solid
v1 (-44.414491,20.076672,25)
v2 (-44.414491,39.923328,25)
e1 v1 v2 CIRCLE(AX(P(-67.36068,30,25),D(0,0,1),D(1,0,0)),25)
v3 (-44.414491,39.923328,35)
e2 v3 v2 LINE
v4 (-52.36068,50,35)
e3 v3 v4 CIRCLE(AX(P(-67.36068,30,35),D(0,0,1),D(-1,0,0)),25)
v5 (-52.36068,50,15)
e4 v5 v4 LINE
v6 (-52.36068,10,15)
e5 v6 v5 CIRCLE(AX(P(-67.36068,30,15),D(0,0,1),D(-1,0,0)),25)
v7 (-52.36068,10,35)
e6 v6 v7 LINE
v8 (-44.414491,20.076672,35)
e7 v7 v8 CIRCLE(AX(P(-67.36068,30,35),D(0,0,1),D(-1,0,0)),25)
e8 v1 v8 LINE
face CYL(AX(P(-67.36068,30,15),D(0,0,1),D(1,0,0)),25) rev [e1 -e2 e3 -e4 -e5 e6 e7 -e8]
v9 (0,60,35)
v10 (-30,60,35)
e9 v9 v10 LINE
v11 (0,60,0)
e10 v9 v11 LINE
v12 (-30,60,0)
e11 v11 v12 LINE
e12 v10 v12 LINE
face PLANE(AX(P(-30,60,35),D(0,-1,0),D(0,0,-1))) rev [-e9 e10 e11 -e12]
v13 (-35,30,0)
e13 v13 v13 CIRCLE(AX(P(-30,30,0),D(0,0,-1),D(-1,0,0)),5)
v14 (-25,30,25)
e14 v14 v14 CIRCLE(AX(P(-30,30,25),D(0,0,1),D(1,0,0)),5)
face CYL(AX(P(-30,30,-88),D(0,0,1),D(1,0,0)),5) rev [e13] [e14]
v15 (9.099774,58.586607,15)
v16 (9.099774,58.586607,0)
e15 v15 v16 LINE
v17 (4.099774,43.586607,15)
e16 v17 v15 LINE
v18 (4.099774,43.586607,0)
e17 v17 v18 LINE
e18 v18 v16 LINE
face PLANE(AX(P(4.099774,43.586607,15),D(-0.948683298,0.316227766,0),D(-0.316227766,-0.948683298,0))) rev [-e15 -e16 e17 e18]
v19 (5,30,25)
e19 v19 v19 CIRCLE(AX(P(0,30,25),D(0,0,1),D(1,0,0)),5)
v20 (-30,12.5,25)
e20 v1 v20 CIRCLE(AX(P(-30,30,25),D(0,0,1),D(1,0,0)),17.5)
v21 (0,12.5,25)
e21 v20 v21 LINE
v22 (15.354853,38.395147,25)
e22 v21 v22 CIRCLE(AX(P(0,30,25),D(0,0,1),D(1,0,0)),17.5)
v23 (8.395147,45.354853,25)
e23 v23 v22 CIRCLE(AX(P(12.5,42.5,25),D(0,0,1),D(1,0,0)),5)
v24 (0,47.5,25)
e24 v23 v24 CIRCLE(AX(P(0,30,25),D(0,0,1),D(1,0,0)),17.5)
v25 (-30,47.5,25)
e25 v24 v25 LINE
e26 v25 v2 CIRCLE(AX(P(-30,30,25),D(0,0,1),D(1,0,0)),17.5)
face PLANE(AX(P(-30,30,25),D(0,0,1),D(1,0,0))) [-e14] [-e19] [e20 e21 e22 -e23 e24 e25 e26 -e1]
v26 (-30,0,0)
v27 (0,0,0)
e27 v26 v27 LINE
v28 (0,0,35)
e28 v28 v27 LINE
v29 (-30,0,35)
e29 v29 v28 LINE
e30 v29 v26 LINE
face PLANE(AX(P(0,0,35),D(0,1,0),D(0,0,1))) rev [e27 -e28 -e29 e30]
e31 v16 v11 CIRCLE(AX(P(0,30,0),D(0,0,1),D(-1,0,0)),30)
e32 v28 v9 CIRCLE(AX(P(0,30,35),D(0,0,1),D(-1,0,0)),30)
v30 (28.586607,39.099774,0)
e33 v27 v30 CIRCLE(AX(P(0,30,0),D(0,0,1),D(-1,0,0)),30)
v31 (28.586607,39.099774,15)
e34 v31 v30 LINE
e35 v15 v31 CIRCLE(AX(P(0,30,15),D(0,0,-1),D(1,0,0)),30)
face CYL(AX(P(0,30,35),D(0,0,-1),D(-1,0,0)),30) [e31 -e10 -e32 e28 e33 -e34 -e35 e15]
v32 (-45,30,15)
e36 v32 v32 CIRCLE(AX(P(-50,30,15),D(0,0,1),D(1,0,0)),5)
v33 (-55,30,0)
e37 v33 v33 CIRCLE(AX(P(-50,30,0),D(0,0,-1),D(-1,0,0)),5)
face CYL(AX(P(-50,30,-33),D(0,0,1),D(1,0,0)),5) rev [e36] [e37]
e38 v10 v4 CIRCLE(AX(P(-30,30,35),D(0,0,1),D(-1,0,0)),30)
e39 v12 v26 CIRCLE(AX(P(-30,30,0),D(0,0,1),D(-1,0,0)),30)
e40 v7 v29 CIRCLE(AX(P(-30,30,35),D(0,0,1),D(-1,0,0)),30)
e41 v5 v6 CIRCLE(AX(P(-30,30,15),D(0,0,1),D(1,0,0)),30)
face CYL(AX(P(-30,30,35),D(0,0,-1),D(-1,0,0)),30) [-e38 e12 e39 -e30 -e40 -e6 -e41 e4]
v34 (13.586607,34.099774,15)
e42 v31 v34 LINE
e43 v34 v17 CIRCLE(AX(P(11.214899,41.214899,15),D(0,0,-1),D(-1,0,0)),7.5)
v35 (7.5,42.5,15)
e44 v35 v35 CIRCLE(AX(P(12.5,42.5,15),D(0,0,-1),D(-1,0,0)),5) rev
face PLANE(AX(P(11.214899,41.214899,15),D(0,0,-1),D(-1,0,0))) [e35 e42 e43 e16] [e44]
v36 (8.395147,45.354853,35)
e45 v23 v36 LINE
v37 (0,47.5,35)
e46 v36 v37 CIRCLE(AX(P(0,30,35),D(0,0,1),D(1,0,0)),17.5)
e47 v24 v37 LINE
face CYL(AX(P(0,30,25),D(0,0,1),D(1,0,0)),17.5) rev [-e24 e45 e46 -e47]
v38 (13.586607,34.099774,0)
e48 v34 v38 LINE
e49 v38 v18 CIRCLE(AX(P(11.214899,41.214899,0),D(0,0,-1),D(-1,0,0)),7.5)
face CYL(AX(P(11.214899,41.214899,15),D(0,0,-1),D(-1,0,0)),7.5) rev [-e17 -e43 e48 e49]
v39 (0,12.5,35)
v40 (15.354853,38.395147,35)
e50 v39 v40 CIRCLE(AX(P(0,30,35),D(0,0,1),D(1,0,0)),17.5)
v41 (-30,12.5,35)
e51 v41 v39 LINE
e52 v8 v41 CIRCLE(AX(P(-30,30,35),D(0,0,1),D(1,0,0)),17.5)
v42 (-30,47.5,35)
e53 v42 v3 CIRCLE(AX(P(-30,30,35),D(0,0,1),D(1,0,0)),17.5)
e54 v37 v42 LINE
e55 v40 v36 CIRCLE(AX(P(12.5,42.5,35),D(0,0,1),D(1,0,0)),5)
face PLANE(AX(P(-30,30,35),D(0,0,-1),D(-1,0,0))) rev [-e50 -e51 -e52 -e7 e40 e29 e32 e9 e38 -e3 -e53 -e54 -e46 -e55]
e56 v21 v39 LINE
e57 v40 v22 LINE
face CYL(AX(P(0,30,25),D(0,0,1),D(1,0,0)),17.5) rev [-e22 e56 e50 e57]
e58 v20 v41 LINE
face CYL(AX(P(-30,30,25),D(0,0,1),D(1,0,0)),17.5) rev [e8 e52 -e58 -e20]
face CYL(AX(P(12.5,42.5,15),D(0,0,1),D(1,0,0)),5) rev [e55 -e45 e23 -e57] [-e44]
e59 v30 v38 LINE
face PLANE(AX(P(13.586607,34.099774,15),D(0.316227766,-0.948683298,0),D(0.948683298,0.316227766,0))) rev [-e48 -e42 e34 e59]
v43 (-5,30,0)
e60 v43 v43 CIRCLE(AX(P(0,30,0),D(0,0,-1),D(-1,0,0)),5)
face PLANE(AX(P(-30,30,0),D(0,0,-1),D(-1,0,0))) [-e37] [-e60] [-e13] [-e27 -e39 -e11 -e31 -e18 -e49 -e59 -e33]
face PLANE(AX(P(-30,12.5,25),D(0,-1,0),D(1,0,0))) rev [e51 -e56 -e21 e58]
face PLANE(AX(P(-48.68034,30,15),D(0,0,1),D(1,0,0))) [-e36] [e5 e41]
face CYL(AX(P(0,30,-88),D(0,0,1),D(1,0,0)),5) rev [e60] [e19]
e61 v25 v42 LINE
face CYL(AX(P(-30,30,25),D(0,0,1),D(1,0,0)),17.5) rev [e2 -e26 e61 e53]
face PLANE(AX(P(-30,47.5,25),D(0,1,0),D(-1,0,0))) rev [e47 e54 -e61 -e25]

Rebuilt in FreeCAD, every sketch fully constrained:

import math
import FreeCAD as App
import Part
import Sketcher
Q = App.Units.Quantity

doc = App.newDocument("Part")
body = doc.addObject("PartDesign::Body", "Body")

# Sketch on XY plane
sketch1 = doc.addObject("Sketcher::SketchObject", "Sketch")
body.addObject(sketch1)
sketch1.AttachmentSupport = (doc.XY_Plane, [""])
sketch1.MapMode = "FlatFace"
sketch1.addGeometry([
    Part.LineSegment(App.Vector(0, 60, 0), App.Vector(-30, 60, 0)),
    Part.ArcOfCircle(Part.Circle(App.Vector(-30, 30, 0), App.Vector(0, 0, 1), 30), math.radians(90), math.radians(270)),
    Part.LineSegment(App.Vector(-30, 0, 0), App.Vector(0, 0, 0)),
    Part.ArcOfCircle(Part.Circle(App.Vector(0, 30, 0), App.Vector(0, 0, 1), 30), math.radians(-90), math.radians(90)),
], False)
sketch1.addConstraint([
    Sketcher.Constraint("Tangent", 0, 2, 1, 1),
    Sketcher.Constraint("Tangent", 1, 2, 2, 1),
    Sketcher.Constraint("Tangent", 2, 2, 3, 1),
    Sketcher.Constraint("Tangent", 3, 2, 0, 1),
    Sketcher.Constraint("Horizontal", 0),
    Sketcher.Constraint("Horizontal", 2),
    Sketcher.Constraint("Coincident", 2, 2, -1, 1),
    Sketcher.Constraint("Radius", 1, Q("30 mm")),
    Sketcher.Constraint("DistanceX", 0, 2, 0, 1, Q("30 mm")),
])
pad1 = doc.addObject("PartDesign::Pad", "Pad")
body.addObject(pad1)
pad1.Profile = sketch1
pad1.Length = 35

# Sketch on XY plane
sketch2 = doc.addObject("Sketcher::SketchObject", "Sketch001")
body.addObject(sketch2)
sketch2.AttachmentSupport = (doc.XY_Plane, [""])
sketch2.MapMode = "FlatFace"
sketch2.AttachmentOffset = App.Placement(App.Vector(0, 0, 35), App.Rotation())
sketch2.addGeometry([
    Part.LineSegment(App.Vector(0, 48, 0), App.Vector(-30, 48, 0)),
    Part.ArcOfCircle(Part.Circle(App.Vector(-30, 30, 0), App.Vector(0, 0, 1), 18), math.radians(90), math.radians(270)),
    Part.LineSegment(App.Vector(-30, 12, 0), App.Vector(0, 12, 0)),
    Part.ArcOfCircle(Part.Circle(App.Vector(0, 30, 0), App.Vector(0, 0, 1), 18), math.radians(-90), math.radians(90)),
], False)
sketch2.addConstraint([
    Sketcher.Constraint("Tangent", 0, 2, 1, 1),
    Sketcher.Constraint("Tangent", 1, 2, 2, 1),
    Sketcher.Constraint("Tangent", 2, 2, 3, 1),
    Sketcher.Constraint("Tangent", 3, 2, 0, 1),
    Sketcher.Constraint("Horizontal", 0),
    Sketcher.Constraint("Horizontal", 2),
    Sketcher.Constraint("PointOnObject", 3, 3, -2),
    Sketcher.Constraint("Radius", 1, Q("17.5 mm")),
    Sketcher.Constraint("DistanceX", 0, 2, 0, 1, Q("30 mm")),
    Sketcher.Constraint("DistanceY", -1, 1, 1, 3, Q("30 mm")),
])
pocket1 = doc.addObject("PartDesign::Pocket", "Pocket")
body.addObject(pocket1)
pocket1.Profile = sketch2
pocket1.Length = 10

# Sketch on XY plane
sketch3 = doc.addObject("Sketcher::SketchObject", "Sketch002")
body.addObject(sketch3)
sketch3.AttachmentSupport = (doc.XY_Plane, [""])
sketch3.MapMode = "FlatFace"
sketch3.AttachmentOffset = App.Placement(App.Vector(0, 0, 25), App.Rotation())
sketch3.addGeometry([
    Part.Circle(App.Vector(-30, 30, 0), App.Vector(0, 0, 1), 5),
    Part.Circle(App.Vector(0, 30, 0), App.Vector(0, 0, 1), 5),
], False)
sketch3.addConstraint([
    Sketcher.Constraint("Equal", 0, 1),
    Sketcher.Constraint("PointOnObject", 1, 3, -2),
    Sketcher.Constraint("Horizontal", 0, 3, 1, 3),
    Sketcher.Constraint("Diameter", 0, Q("10 mm")),
    Sketcher.Constraint("DistanceX", 0, 3, -1, 1, Q("30 mm")),
    Sketcher.Constraint("DistanceY", -1, 1, 0, 3, Q("30 mm")),
])
pocket2 = doc.addObject("PartDesign::Pocket", "Pocket001")
body.addObject(pocket2)
pocket2.Profile = sketch3
pocket2.Length = 113

# Sketch on XY plane
sketch4 = doc.addObject("Sketcher::SketchObject", "Sketch003")
body.addObject(sketch4)
sketch4.AttachmentSupport = (doc.XY_Plane, [""])
sketch4.MapMode = "FlatFace"
sketch4.AttachmentOffset = App.Placement(App.Vector(0, 0, 35), App.Rotation())
sketch4.addGeometry(Part.Circle(App.Vector(12, 42, 0), App.Vector(0, 0, 1), 5), False)
sketch4.addConstraint([
    Sketcher.Constraint("Diameter", 0, Q("10 mm")),
    Sketcher.Constraint("DistanceX", -1, 1, 0, 3, Q("12.5 mm")),
    Sketcher.Constraint("DistanceY", -1, 1, 0, 3, Q("42.5 mm")),
])
pocket3 = doc.addObject("PartDesign::Pocket", "Pocket002")
body.addObject(pocket3)
pocket3.Profile = sketch4
pocket3.Length = 20

# Sketch on XY plane
sketch5 = doc.addObject("Sketcher::SketchObject", "Sketch004")
body.addObject(sketch5)
sketch5.AttachmentSupport = (doc.XY_Plane, [""])
sketch5.MapMode = "FlatFace"
sketch5.AttachmentOffset = App.Placement(App.Vector(0, 0, 35), App.Rotation())
sketch5.addGeometry([
    Part.ArcOfCircle(Part.Circle(App.Vector(-67, 30, 0), App.Vector(0, 0, 1), 25), math.radians(-53), math.radians(53)),
    Part.ArcOfCircle(Part.Circle(App.Vector(-30, 30, 0), App.Vector(0, 0, 1), 30), math.radians(138), math.radians(222)),
], False)
sketch5.addConstraint([
    Sketcher.Constraint("Coincident", 0, 1, 1, 2),
    Sketcher.Constraint("Coincident", 1, 1, 0, 2),
    Sketcher.Constraint("Horizontal", 0, 3, 1, 3),
    Sketcher.Constraint("Radius", 0, Q("25 mm")),
    Sketcher.Constraint("Radius", 1, Q("30 mm")),
    Sketcher.Constraint("DistanceY", -1, 1, 0, 3, Q("30 mm")),
    Sketcher.Constraint("DistanceX", 1, 3, -1, 1, Q("30 mm")),
    Sketcher.Constraint("DistanceY", -1, 1, 0, 1, Q("10 mm")),
])
pocket4 = doc.addObject("PartDesign::Pocket", "Pocket003")
body.addObject(pocket4)
pocket4.Profile = sketch5
pocket4.Length = 20

# Sketch on XY plane
sketch6 = doc.addObject("Sketcher::SketchObject", "Sketch005")
body.addObject(sketch6)
sketch6.AttachmentSupport = (doc.XY_Plane, [""])
sketch6.MapMode = "FlatFace"
sketch6.AttachmentOffset = App.Placement(App.Vector(0, 0, 15), App.Rotation())
sketch6.addGeometry(Part.Circle(App.Vector(-50, 30, 0), App.Vector(0, 0, 1), 5), False)
sketch6.addConstraint([
    Sketcher.Constraint("Diameter", 0, Q("10 mm")),
    Sketcher.Constraint("DistanceX", 0, 3, -1, 1, Q("50 mm")),
    Sketcher.Constraint("DistanceY", -1, 1, 0, 3, Q("30 mm")),
])
pocket5 = doc.addObject("PartDesign::Pocket", "Pocket004")
body.addObject(pocket5)
pocket5.Profile = sketch6
pocket5.Length = 48

# Sketch on XY plane
sketch7 = doc.addObject("Sketcher::SketchObject", "Sketch006")
body.addObject(sketch7)
sketch7.AttachmentSupport = (doc.XY_Plane, [""])
sketch7.MapMode = "FlatFace"
sketch7.addGeometry([
    Part.LineSegment(App.Vector(4, 44, 0), App.Vector(9, 59, 0)),
    Part.ArcOfCircle(Part.Circle(App.Vector(0, 30, 0), App.Vector(0, 0, 1), 30), math.radians(18), math.radians(72)),
    Part.LineSegment(App.Vector(29, 39, 0), App.Vector(14, 34, 0)),
    Part.ArcOfCircle(Part.Circle(App.Vector(11, 41, 0), App.Vector(0, 0, 1), 8), math.radians(162), math.radians(288)),
], False)
sketch7.addConstraint([
    Sketcher.Constraint("Coincident", 0, 2, 1, 2),
    Sketcher.Constraint("Coincident", 1, 1, 2, 1),
    Sketcher.Constraint("Tangent", 2, 2, 3, 2),
    Sketcher.Constraint("Tangent", 3, 1, 0, 1),
    Sketcher.Constraint("PointOnObject", 1, 3, -2),
    Sketcher.Constraint("Equal", 0, 2),
    Sketcher.Constraint("Radius", 1, Q("30 mm")),
    Sketcher.Constraint("Radius", 3, Q("7.5 mm")),
    Sketcher.Constraint("DistanceY", -1, 1, 1, 3, Q("30 mm")),
    Sketcher.Constraint("DistanceX", 2, 2, 1, 1, Q("15 mm")),
    Sketcher.Constraint("DistanceY", 2, 2, 1, 1, Q("5 mm")),
    Sketcher.Constraint("DistanceX", 3, 1, 0, 2, Q("5 mm")),
])
pocket6 = doc.addObject("PartDesign::Pocket", "Pocket005")
body.addObject(pocket6)
pocket6.Profile = sketch7
pocket6.Length = 15
pocket6.Reversed = True

doc.recompute()
